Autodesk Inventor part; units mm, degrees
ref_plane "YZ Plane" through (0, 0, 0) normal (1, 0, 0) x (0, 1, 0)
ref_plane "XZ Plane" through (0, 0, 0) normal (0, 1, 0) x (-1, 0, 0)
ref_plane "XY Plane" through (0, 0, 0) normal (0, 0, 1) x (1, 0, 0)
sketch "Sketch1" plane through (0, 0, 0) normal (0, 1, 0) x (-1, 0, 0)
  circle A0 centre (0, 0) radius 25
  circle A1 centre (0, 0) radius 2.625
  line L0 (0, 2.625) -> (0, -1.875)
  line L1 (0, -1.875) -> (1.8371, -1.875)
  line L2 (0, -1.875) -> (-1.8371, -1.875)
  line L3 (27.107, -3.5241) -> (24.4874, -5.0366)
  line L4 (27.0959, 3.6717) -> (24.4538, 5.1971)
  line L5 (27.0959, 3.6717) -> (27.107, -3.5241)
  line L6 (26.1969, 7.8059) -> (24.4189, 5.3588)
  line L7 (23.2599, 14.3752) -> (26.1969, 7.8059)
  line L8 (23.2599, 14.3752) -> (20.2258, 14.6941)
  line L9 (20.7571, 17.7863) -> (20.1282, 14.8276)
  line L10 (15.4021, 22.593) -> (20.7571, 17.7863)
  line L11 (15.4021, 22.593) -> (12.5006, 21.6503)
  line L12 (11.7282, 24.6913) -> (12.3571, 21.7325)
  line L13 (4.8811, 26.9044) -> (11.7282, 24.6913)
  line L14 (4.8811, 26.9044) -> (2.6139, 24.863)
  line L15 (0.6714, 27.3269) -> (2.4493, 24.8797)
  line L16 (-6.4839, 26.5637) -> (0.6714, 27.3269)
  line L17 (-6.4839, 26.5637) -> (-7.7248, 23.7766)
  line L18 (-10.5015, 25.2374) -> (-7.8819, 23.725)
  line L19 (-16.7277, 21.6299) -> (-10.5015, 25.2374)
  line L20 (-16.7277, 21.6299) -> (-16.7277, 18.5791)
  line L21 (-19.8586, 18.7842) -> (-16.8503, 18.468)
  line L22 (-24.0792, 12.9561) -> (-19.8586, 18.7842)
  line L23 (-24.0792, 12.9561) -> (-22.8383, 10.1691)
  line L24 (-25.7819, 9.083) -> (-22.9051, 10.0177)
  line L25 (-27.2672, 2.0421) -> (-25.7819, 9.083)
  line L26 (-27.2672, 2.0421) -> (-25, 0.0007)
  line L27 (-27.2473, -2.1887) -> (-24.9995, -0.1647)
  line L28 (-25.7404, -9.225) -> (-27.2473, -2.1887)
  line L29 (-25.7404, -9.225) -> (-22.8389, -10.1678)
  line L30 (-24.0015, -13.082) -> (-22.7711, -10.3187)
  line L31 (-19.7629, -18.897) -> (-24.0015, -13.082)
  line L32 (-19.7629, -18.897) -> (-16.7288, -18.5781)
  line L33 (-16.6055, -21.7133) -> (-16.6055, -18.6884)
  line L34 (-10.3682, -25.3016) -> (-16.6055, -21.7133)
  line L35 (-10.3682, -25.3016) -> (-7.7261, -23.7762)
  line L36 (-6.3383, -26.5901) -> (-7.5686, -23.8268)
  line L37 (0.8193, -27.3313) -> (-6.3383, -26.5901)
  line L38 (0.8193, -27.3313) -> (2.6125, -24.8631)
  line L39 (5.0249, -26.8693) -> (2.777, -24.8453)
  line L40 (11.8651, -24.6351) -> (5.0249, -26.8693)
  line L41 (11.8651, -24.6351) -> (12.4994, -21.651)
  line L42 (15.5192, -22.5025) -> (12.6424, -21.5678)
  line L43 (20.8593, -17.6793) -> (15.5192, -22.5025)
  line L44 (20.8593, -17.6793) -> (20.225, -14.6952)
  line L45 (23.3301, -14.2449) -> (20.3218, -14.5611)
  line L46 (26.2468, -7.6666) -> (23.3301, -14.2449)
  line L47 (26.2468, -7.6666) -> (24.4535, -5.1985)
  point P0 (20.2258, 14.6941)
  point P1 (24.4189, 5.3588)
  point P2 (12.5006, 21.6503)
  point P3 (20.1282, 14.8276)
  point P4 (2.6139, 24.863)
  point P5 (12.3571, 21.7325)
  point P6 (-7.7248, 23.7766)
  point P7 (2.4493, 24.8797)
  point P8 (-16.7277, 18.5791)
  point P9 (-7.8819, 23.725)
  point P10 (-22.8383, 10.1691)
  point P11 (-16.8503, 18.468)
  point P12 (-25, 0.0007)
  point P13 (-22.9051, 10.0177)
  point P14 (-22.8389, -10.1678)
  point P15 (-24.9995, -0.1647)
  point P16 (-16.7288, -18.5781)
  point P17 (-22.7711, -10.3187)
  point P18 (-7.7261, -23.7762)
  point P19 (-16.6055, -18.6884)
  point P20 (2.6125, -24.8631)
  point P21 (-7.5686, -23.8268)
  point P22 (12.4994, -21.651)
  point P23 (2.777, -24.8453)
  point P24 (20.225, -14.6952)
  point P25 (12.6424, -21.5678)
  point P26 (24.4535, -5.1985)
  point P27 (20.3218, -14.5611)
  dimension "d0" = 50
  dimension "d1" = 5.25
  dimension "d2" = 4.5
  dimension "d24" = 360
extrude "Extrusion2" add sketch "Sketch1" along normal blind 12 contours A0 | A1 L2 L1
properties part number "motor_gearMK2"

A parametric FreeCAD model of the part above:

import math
import FreeCAD as App
import Part
import Sketcher

V = App.Vector

doc = App.newDocument("Part")
body = doc.addObject("PartDesign::Body", "Body")

# Sketch on XZ plane
sketch1 = doc.addObject("Sketcher::SketchObject", "Sketch")
body.addObject(sketch1)
sketch1.AttachmentSupport = (doc.XZ_Plane, [""])
sketch1.MapMode = "FlatFace"
sketch1.addGeometry([
    Part.Circle(V(0, 0, 0), V(0, 0, 1), 25),
    Part.LineSegment(V(-1.8371, -1.875, 0), V(1.8371, -1.875, 0)),
    Part.ArcOfCircle(Part.Circle(V(0, 0, 0), V(0, 0, 1), 2.625), math.radians(-45.584961), math.radians(225.584961)),
], False)
sketch1.addConstraint([
    Sketcher.Constraint("Coincident", 1, 1, 2, 2),
    Sketcher.Constraint("Coincident", 2, 1, 1, 2),
    Sketcher.Constraint("Horizontal", 1),
    Sketcher.Constraint("Coincident", 0, 3, -1, 1),
    Sketcher.Constraint("Coincident", 2, 3, -1, 1),
    Sketcher.Constraint("Diameter", 0, 50.0),
    Sketcher.Constraint("Radius", 2, 2.625),
    Sketcher.Constraint("DistanceX", 1, 1, 1, 2, 3.6742),
])
pad1 = doc.addObject("PartDesign::Pad", "Pad")
body.addObject(pad1)
pad1.Profile = sketch1
pad1.Length = 12
pad1.Reversed = True

doc.recompute()
